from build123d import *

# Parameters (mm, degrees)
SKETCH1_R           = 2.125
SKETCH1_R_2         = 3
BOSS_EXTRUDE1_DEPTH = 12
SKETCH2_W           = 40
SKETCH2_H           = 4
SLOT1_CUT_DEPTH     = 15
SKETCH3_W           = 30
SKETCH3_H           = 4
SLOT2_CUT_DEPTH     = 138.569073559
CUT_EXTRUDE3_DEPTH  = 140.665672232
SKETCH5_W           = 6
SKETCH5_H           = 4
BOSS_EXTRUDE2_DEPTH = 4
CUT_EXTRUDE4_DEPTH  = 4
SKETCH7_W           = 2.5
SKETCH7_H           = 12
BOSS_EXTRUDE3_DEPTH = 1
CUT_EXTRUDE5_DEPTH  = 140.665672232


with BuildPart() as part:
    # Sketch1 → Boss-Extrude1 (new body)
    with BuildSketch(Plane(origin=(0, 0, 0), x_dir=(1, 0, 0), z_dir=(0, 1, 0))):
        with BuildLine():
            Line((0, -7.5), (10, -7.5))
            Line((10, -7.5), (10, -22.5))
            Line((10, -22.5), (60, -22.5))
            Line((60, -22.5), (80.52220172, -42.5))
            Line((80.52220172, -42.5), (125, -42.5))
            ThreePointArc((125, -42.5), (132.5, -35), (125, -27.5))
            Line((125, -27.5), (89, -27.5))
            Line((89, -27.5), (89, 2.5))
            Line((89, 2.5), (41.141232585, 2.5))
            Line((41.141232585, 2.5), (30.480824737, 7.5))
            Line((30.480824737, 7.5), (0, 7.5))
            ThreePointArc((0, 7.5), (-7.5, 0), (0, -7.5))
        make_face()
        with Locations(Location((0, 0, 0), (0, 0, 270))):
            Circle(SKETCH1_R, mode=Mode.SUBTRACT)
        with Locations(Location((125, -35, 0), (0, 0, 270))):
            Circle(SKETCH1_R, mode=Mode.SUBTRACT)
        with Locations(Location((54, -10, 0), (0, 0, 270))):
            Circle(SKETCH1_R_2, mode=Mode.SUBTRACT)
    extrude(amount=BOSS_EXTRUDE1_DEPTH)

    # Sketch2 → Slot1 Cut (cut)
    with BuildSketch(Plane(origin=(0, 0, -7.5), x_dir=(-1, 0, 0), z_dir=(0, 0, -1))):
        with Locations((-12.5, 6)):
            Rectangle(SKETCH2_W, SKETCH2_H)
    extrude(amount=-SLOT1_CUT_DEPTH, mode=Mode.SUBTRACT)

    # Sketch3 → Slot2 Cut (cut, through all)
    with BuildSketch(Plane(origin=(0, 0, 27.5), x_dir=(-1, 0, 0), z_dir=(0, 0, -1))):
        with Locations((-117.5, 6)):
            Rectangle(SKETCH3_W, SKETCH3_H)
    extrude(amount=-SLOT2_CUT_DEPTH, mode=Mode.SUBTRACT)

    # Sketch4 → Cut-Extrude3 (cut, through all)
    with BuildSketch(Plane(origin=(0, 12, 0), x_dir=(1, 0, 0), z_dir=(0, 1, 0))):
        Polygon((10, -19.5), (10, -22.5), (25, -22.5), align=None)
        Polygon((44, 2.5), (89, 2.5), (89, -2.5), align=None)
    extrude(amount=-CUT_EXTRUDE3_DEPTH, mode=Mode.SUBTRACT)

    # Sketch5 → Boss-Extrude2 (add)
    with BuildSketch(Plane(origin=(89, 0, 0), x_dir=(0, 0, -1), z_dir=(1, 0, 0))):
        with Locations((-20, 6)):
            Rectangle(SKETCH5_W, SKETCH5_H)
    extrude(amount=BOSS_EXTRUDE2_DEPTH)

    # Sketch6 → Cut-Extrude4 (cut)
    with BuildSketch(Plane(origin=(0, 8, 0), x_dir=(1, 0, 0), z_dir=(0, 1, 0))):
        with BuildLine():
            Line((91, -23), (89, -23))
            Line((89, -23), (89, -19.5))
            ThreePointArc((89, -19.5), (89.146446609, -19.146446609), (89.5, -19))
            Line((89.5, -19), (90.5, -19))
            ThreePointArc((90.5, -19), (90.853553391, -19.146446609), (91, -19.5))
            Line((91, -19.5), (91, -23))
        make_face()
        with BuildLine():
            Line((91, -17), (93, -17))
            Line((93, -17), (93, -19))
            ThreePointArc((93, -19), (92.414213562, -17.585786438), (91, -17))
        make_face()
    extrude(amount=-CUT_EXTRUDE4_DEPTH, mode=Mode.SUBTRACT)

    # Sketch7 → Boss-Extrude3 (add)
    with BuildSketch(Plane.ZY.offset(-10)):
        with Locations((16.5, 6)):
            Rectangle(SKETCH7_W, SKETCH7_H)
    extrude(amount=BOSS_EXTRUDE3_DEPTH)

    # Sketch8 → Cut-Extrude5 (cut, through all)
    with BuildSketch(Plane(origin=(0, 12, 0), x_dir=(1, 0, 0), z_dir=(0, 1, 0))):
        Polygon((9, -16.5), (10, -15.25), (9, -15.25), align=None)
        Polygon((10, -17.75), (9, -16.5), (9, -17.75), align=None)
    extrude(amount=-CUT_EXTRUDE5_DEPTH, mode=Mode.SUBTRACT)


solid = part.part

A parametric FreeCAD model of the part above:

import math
import FreeCAD as App
import Part
import Sketcher
from FreeCAD import Vector


def add_polygon(sketch, points):
    """Adds a closed chain of lines whose ends are joined by coincident constraints."""
    first, n = sketch.GeometryCount, len(points)
    for a, b in zip(points, points[1:] + points[:1]):
        sketch.addGeometry(Part.LineSegment(App.Vector(*a, 0), App.Vector(*b, 0)), False)
    for i in range(n):
        sketch.addConstraint(Sketcher.Constraint("Coincident", first + i, 2, first + (i + 1) % n, 1))

doc = App.newDocument("Part")
body = doc.addObject("PartDesign::Body", "Body")

# Sketch on XZ plane
sketch1 = body.newObject("Sketcher::SketchObject", "Sketch")
sketch1.AttachmentSupport = (doc.getObject("XZ_Plane"), [""])
sketch1.MapMode = "FlatFace"
sketch1.addGeometry(Part.LineSegment(Vector(0, 7.5, 0), Vector(10, 7.5, 0)), False)
sketch1.addGeometry(Part.LineSegment(Vector(10, 7.5, 0), Vector(10, 22.5, 0)), False)
sketch1.addGeometry(Part.LineSegment(Vector(10, 22.5, 0), Vector(60, 22.5, 0)), False)
sketch1.addGeometry(Part.LineSegment(Vector(60, 22.5, 0), Vector(80.522202, 42.5, 0)), False)
sketch1.addGeometry(Part.LineSegment(Vector(80.522202, 42.5, 0), Vector(125, 42.5, 0)), False)
sketch1.addGeometry(Part.ArcOfCircle(Part.Circle(Vector(125, 35, 0), Vector(0, 0, 1), 7.5), math.radians(-90), math.radians(90)), False)
sketch1.addGeometry(Part.LineSegment(Vector(125, 27.5, 0), Vector(89, 27.5, 0)), False)
sketch1.addGeometry(Part.LineSegment(Vector(89, 27.5, 0), Vector(89, -2.5, 0)), False)
sketch1.addGeometry(Part.LineSegment(Vector(89, -2.5, 0), Vector(41.141233, -2.5, 0)), False)
sketch1.addGeometry(Part.LineSegment(Vector(41.141233, -2.5, 0), Vector(30.480825, -7.5, 0)), False)
sketch1.addGeometry(Part.LineSegment(Vector(30.480825, -7.5, 0), Vector(0, -7.5, 0)), False)
sketch1.addGeometry(Part.ArcOfCircle(Part.Circle(Vector(0, 0, 0), Vector(0, 0, 1), 7.5), math.radians(90), math.radians(270)), False)
sketch1.addGeometry(Part.Circle(Vector(125, 35, 0), Vector(0, 0, 1), 2.125), False)
sketch1.addGeometry(Part.Circle(Vector(54, 10, 0), Vector(0, 0, 1), 3), False)
sketch1.addGeometry(Part.Circle(Vector(0, 0, 0), Vector(0, 0, 1), 2.125), False)
sketch1.addConstraint(Sketcher.Constraint("Coincident", 0, 2, 1, 1))
sketch1.addConstraint(Sketcher.Constraint("Coincident", 1, 2, 2, 1))
sketch1.addConstraint(Sketcher.Constraint("Coincident", 2, 2, 3, 1))
sketch1.addConstraint(Sketcher.Constraint("Coincident", 3, 2, 4, 1))
sketch1.addConstraint(Sketcher.Constraint("Tangent", 4, 2, 5, 2))
sketch1.addConstraint(Sketcher.Constraint("Tangent", 5, 1, 6, 1))
sketch1.addConstraint(Sketcher.Constraint("Coincident", 6, 2, 7, 1))
sketch1.addConstraint(Sketcher.Constraint("Coincident", 7, 2, 8, 1))
sketch1.addConstraint(Sketcher.Constraint("Coincident", 8, 2, 9, 1))
sketch1.addConstraint(Sketcher.Constraint("Coincident", 9, 2, 10, 1))
sketch1.addConstraint(Sketcher.Constraint("Tangent", 10, 2, 11, 2))
sketch1.addConstraint(Sketcher.Constraint("Tangent", 11, 1, 0, 1))
sketch1.addConstraint(Sketcher.Constraint("Horizontal", 0))
sketch1.addConstraint(Sketcher.Constraint("Vertical", 1))
sketch1.addConstraint(Sketcher.Constraint("Horizontal", 2))
sketch1.addConstraint(Sketcher.Constraint("Horizontal", 4))
sketch1.addConstraint(Sketcher.Constraint("Horizontal", 6))
sketch1.addConstraint(Sketcher.Constraint("Vertical", 7))
sketch1.addConstraint(Sketcher.Constraint("Horizontal", 8))
sketch1.addConstraint(Sketcher.Constraint("Horizontal", 10))
sketch1.addConstraint(Sketcher.Constraint("Coincident", 11, 3, -1, 1))
sketch1.addConstraint(Sketcher.Constraint("Coincident", 14, 3, -1, 1))
sketch1.addConstraint(Sketcher.Constraint("Coincident", 12, 3, 5, 3))
sketch1.addConstraint(Sketcher.Constraint("Equal", 5, 11))
sketch1.addConstraint(Sketcher.Constraint("Equal", 12, 14))
sketch1.addConstraint(Sketcher.Constraint("Diameter", 13, 6.0))
sketch1.addConstraint(Sketcher.Constraint("Radius", 5, 7.5))
sketch1.addConstraint(Sketcher.Constraint("Diameter", 12, 4.25))
sketch1.addConstraint(Sketcher.Constraint("DistanceX", 0, 1, 0, 2, 10.0))
sketch1.addConstraint(Sketcher.Constraint("DistanceX", 2, 1, 2, 2, 50.0))
sketch1.addConstraint(Sketcher.Constraint("DistanceX", 6, 2, 6, 1, 36.0))
sketch1.addConstraint(Sketcher.Constraint("DistanceY", 1, 1, 1, 2, 15.0))
sketch1.addConstraint(Sketcher.Constraint("DistanceY", 7, 2, 7, 1, 30.0))
sketch1.addConstraint(Sketcher.Constraint("DistanceX", -1, 1, 5, 3, 125.0))
sketch1.addConstraint(Sketcher.Constraint("DistanceY", -1, 1, 5, 3, 35.0))
sketch1.addConstraint(Sketcher.Constraint("DistanceX", -1, 1, 13, 3, 54.0))
sketch1.addConstraint(Sketcher.Constraint("DistanceY", -1, 1, 13, 3, 10.0))
sketch1.addConstraint(Sketcher.Constraint("DistanceX", 4, 1, 4, 2, 44.477798))
sketch1.addConstraint(Sketcher.Constraint("Distance", 9, 11.774731))
sketch1.addConstraint(Sketcher.Constraint("DistanceX", 8, 2, 8, 1, 47.858767))
pad1 = body.newObject("PartDesign::Pad", "Pad")
pad1.Profile = sketch1
pad1.Length = 12
pad1.Reversed = True

# Sketch on XY plane
sketch2 = body.newObject("Sketcher::SketchObject", "Sketch001")
sketch2.AttachmentSupport = (doc.getObject("XY_Plane"), [""])
sketch2.MapMode = "FlatFace"
sketch2.AttachmentOffset = App.Placement(Vector(0, 0, -7.5), App.Rotation())
add_polygon(sketch2, [(32.5, 8), (32.5, 4), (-7.5, 4), (-7.5, 8)])  # lines 0-3
sketch2.addConstraint(Sketcher.Constraint("Vertical", 0))
sketch2.addConstraint(Sketcher.Constraint("Horizontal", 1))
sketch2.addConstraint(Sketcher.Constraint("Vertical", 2))
sketch2.addConstraint(Sketcher.Constraint("Horizontal", 3))
sketch2.addConstraint(Sketcher.Constraint("DistanceX", 1, 2, 1, 1, 40.0))
sketch2.addConstraint(Sketcher.Constraint("DistanceY", 0, 2, 0, 1, 4.0))
sketch2.addConstraint(Sketcher.Constraint("DistanceY", -1, 1, 0, 2, 4.0))
sketch2.addConstraint(Sketcher.Constraint("DistanceX", -1, 1, 0, 2, 32.5))
pocket1 = body.newObject("PartDesign::Pocket", "Pocket")
pocket1.Profile = sketch2
pocket1.Length = 15
pocket1.Reversed = True

# Sketch on XY plane
sketch3 = body.newObject("Sketcher::SketchObject", "Sketch002")
sketch3.AttachmentSupport = (doc.getObject("XY_Plane"), [""])
sketch3.MapMode = "FlatFace"
sketch3.AttachmentOffset = App.Placement(Vector(0, 0, 27.5), App.Rotation())
add_polygon(sketch3, [(132.5, 8), (132.5, 4), (102.5, 4), (102.5, 8)])  # lines 0-3
sketch3.addConstraint(Sketcher.Constraint("Vertical", 0))
sketch3.addConstraint(Sketcher.Constraint("Horizontal", 1))
sketch3.addConstraint(Sketcher.Constraint("Vertical", 2))
sketch3.addConstraint(Sketcher.Constraint("Horizontal", 3))
sketch3.addConstraint(Sketcher.Constraint("DistanceX", 1, 2, 1, 1, 30.0))
sketch3.addConstraint(Sketcher.Constraint("DistanceY", 0, 2, 0, 1, 4.0))
sketch3.addConstraint(Sketcher.Constraint("DistanceY", -1, 1, 0, 2, 4.0))
sketch3.addConstraint(Sketcher.Constraint("DistanceX", -1, 1, 0, 2, 132.5))
pocket2 = body.newObject("PartDesign::Pocket", "Pocket001")
pocket2.Profile = sketch3
pocket2.Type = "ThroughAll"
pocket2.Reversed = True

# Sketch on XZ plane
sketch4 = body.newObject("Sketcher::SketchObject", "Sketch003")
sketch4.AttachmentSupport = (doc.getObject("XZ_Plane"), [""])
sketch4.MapMode = "FlatFace"
sketch4.AttachmentOffset = App.Placement(Vector(0, 0, -12), App.Rotation())
add_polygon(sketch4, [(10, 19.5), (10, 22.5), (25, 22.5)])  # lines 0-2
add_polygon(sketch4, [(89, -2.5), (44, -2.5), (89, 2.5)])  # lines 3-5
sketch4.addConstraint(Sketcher.Constraint("Vertical", 0))
sketch4.addConstraint(Sketcher.Constraint("Horizontal", 1))
sketch4.addConstraint(Sketcher.Constraint("Horizontal", 3))
sketch4.addConstraint(Sketcher.Constraint("Vertical", 5))
sketch4.addConstraint(Sketcher.Constraint("DistanceX", 1, 1, 1, 2, 15.0))
sketch4.addConstraint(Sketcher.Constraint("DistanceX", 3, 2, 3, 1, 45.0))
sketch4.addConstraint(Sketcher.Constraint("DistanceY", 0, 1, 0, 2, 3.0))
sketch4.addConstraint(Sketcher.Constraint("DistanceY", 5, 2, 5, 1, 5.0))
sketch4.addConstraint(Sketcher.Constraint("DistanceX", -1, 1, 0, 2, 10.0))
sketch4.addConstraint(Sketcher.Constraint("DistanceX", -1, 1, 3, 2, 44.0))
sketch4.addConstraint(Sketcher.Constraint("DistanceY", 3, 2, 1, 2, 25.0))
sketch4.addConstraint(Sketcher.Constraint("DistanceY", -1, 1, 0, 2, 22.5))
pocket3 = body.newObject("PartDesign::Pocket", "Pocket002")
pocket3.Profile = sketch4
pocket3.Type = "ThroughAll"
pocket3.Reversed = True

# Sketch on YZ plane
sketch5 = body.newObject("Sketcher::SketchObject", "Sketch004")
sketch5.AttachmentSupport = (doc.getObject("YZ_Plane"), [""])
sketch5.MapMode = "FlatFace"
sketch5.AttachmentOffset = App.Placement(Vector(0, 0, 89), App.Rotation())
add_polygon(sketch5, [(8, 23), (4, 23), (4, 17), (8, 17)])  # lines 0-3
sketch5.addConstraint(Sketcher.Constraint("Horizontal", 0))
sketch5.addConstraint(Sketcher.Constraint("Vertical", 1))
sketch5.addConstraint(Sketcher.Constraint("Horizontal", 2))
sketch5.addConstraint(Sketcher.Constraint("Vertical", 3))
sketch5.addConstraint(Sketcher.Constraint("DistanceX", 0, 2, 0, 1, 4.0))
sketch5.addConstraint(Sketcher.Constraint("DistanceY", 1, 2, 1, 1, 6.0))
sketch5.addConstraint(Sketcher.Constraint("DistanceX", -1, 1, 0, 2, 4.0))
sketch5.addConstraint(Sketcher.Constraint("DistanceY", -1, 1, 0, 2, 23.0))
pad2 = body.newObject("PartDesign::Pad", "Pad001")
pad2.Profile = sketch5
pad2.Length = 4

# Sketch on XZ plane
sketch6 = body.newObject("Sketcher::SketchObject", "Sketch005")
sketch6.AttachmentSupport = (doc.getObject("XZ_Plane"), [""])
sketch6.MapMode = "FlatFace"
sketch6.AttachmentOffset = App.Placement(Vector(0, 0, -8), App.Rotation())
sketch6.addGeometry(Part.LineSegment(Vector(89, 23, 0), Vector(91, 23, 0)), False)
sketch6.addGeometry(Part.LineSegment(Vector(91, 23, 0), Vector(91, 19.5, 0)), False)
sketch6.addGeometry(Part.ArcOfCircle(Part.Circle(Vector(90.5, 19.5, 0), Vector(0, 0, 1), 0.5), math.radians(-90), math.radians(0)), False)
sketch6.addGeometry(Part.LineSegment(Vector(90.5, 19, 0), Vector(89.5, 19, 0)), False)
sketch6.addGeometry(Part.ArcOfCircle(Part.Circle(Vector(89.5, 19.5, 0), Vector(0, 0, 1), 0.5), math.radians(180), math.radians(270)), False)
sketch6.addGeometry(Part.LineSegment(Vector(89, 19.5, 0), Vector(89, 23, 0)), False)
sketch6.addGeometry(Part.LineSegment(Vector(93, 17, 0), Vector(91, 17, 0)), False)
sketch6.addGeometry(Part.ArcOfCircle(Part.Circle(Vector(91, 19, 0), Vector(0, 0, 1), 2), math.radians(-90), math.radians(0)), False)
sketch6.addGeometry(Part.LineSegment(Vector(93, 19, 0), Vector(93, 17, 0)), False)
sketch6.addConstraint(Sketcher.Constraint("Coincident", 0, 2, 1, 1))
sketch6.addConstraint(Sketcher.Constraint("Tangent", 1, 2, 2, 2))
sketch6.addConstraint(Sketcher.Constraint("Tangent", 2, 1, 3, 1))
sketch6.addConstraint(Sketcher.Constraint("Tangent", 3, 2, 4, 2))
sketch6.addConstraint(Sketcher.Constraint("Tangent", 4, 1, 5, 1))
sketch6.addConstraint(Sketcher.Constraint("Coincident", 5, 2, 0, 1))
sketch6.addConstraint(Sketcher.Constraint("Tangent", 6, 2, 7, 1))
sketch6.addConstraint(Sketcher.Constraint("Tangent", 7, 2, 8, 1))
sketch6.addConstraint(Sketcher.Constraint("Coincident", 8, 2, 6, 1))
sketch6.addConstraint(Sketcher.Constraint("Horizontal", 0))
sketch6.addConstraint(Sketcher.Constraint("Vertical", 1))
sketch6.addConstraint(Sketcher.Constraint("Horizontal", 3))
sketch6.addConstraint(Sketcher.Constraint("Vertical", 5))
sketch6.addConstraint(Sketcher.Constraint("Horizontal", 6))
sketch6.addConstraint(Sketcher.Constraint("Vertical", 8))
sketch6.addConstraint(Sketcher.Constraint("Equal", 2, 4))
sketch6.addConstraint(Sketcher.Constraint("Horizontal", 7, 3, 2, 1))
sketch6.addConstraint(Sketcher.Constraint("Vertical", 7, 3, 0, 2))
sketch6.addConstraint(Sketcher.Constraint("Equal", 0, 6))
sketch6.addConstraint(Sketcher.Constraint("Radius", 7, 2.0))
sketch6.addConstraint(Sketcher.Constraint("Radius", 2, 0.5))
sketch6.addConstraint(Sketcher.Constraint("DistanceY", 1, 2, 1, 1, 3.5))
sketch6.addConstraint(Sketcher.Constraint("DistanceX", -1, 1, 7, 3, 91.0))
sketch6.addConstraint(Sketcher.Constraint("DistanceY", -1, 1, 7, 3, 19.0))
pocket4 = body.newObject("PartDesign::Pocket", "Pocket003")
pocket4.Profile = sketch6
pocket4.Length = 4
pocket4.Reversed = True

# Sketch on YZ plane
sketch7 = body.newObject("Sketcher::SketchObject", "Sketch006")
sketch7.AttachmentSupport = (doc.getObject("YZ_Plane"), [""])
sketch7.MapMode = "FlatFace"
sketch7.AttachmentOffset = App.Placement(Vector(0, 0, 10), App.Rotation())
add_polygon(sketch7, [(12, 15.25), (0, 15.25), (0, 17.75), (12, 17.75)])  # lines 0-3
sketch7.addConstraint(Sketcher.Constraint("Horizontal", 0))
sketch7.addConstraint(Sketcher.Constraint("Vertical", 1))
sketch7.addConstraint(Sketcher.Constraint("Horizontal", 2))
sketch7.addConstraint(Sketcher.Constraint("Vertical", 3))
sketch7.addConstraint(Sketcher.Constraint("PointOnObject", 0, 2, -2))
sketch7.addConstraint(Sketcher.Constraint("DistanceX", 0, 2, 0, 1, 12.0))
sketch7.addConstraint(Sketcher.Constraint("DistanceY", 1, 1, 1, 2, 2.5))
sketch7.addConstraint(Sketcher.Constraint("DistanceY", -1, 1, 0, 2, 15.25))
pad3 = body.newObject("PartDesign::Pad", "Pad002")
pad3.Profile = sketch7
pad3.Length = 1
pad3.Reversed = True

# Sketch on XZ plane
sketch8 = body.newObject("Sketcher::SketchObject", "Sketch007")
sketch8.AttachmentSupport = (doc.getObject("XZ_Plane"), [""])
sketch8.MapMode = "FlatFace"
sketch8.AttachmentOffset = App.Placement(Vector(0, 0, -12), App.Rotation())
add_polygon(sketch8, [(9, 16.5), (10, 15.25), (9, 15.25)])  # lines 0-2
add_polygon(sketch8, [(10, 17.75), (9, 16.5), (9, 17.75)])  # lines 3-5
sketch8.addConstraint(Sketcher.Constraint("Horizontal", 1))
sketch8.addConstraint(Sketcher.Constraint("Vertical", 2))
sketch8.addConstraint(Sketcher.Constraint("Vertical", 4))
sketch8.addConstraint(Sketcher.Constraint("Horizontal", 5))
sketch8.addConstraint(Sketcher.Constraint("Coincident", 3, 2, 2, 2))
sketch8.addConstraint(Sketcher.Constraint("Vertical", 0, 2, 5, 2))
sketch8.addConstraint(Sketcher.Constraint("Equal", 2, 4))
sketch8.addConstraint(Sketcher.Constraint("DistanceX", 1, 2, 1, 1, 1.0))
sketch8.addConstraint(Sketcher.Constraint("DistanceX", -1, 1, 0, 2, 10.0))
sketch8.addConstraint(Sketcher.Constraint("DistanceY", 2, 1, 2, 2, 1.25))
sketch8.addConstraint(Sketcher.Constraint("DistanceY", -1, 1, 2, 2, 16.5))
pocket5 = body.newObject("PartDesign::Pocket", "Pocket004")
pocket5.Profile = sketch8
pocket5.Type = "ThroughAll"
pocket5.Reversed = True

doc.recompute()
